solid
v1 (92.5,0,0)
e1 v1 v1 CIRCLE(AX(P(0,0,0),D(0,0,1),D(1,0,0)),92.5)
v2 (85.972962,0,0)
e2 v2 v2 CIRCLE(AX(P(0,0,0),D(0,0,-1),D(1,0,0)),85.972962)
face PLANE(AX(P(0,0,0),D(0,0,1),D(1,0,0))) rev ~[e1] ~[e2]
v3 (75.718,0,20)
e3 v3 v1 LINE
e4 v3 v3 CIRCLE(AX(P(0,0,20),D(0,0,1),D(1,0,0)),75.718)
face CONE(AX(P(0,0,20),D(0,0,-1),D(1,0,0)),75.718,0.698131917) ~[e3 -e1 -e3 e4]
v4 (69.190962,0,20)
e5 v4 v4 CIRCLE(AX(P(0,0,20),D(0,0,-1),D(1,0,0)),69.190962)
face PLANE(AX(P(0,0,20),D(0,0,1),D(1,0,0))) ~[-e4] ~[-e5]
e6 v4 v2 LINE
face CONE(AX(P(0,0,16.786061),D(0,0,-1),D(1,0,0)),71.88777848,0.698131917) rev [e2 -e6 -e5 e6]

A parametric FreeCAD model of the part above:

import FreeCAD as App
import Part
import Sketcher
from FreeCAD import Vector
Q = App.Units.Quantity


def faces_at(feature, points):
    """Names of the faces that lie closest to the given points."""
    faces = feature.Shape.Faces
    near = lambda p: min(range(len(faces)), key=lambda i: faces[i].distToShape(Part.Vertex(*p))[0])
    return sorted({f"Face{near(p) + 1}" for p in points})


def add_polygon(sketch, points):
    """Adds a closed chain of lines whose ends are joined by coincident constraints."""
    first, n = sketch.GeometryCount, len(points)
    for a, b in zip(points, points[1:] + points[:1]):
        sketch.addGeometry(Part.LineSegment(App.Vector(*a, 0), App.Vector(*b, 0)), False)
    for i in range(n):
        sketch.addConstraint(Sketcher.Constraint("Coincident", first + i, 2, first + (i + 1) % n, 1))

doc = App.newDocument("Part")
params = doc.addObject("Spreadsheet::Sheet", "Params")
for row, (alias, value) in enumerate([
    ("sketch1_height", "20 mm"),
    ("sketch1_width", "92.5 mm"),
    ("revolution_angle", "360 deg"),
    ("thickness_wall", "5 mm"),
], start=1):
    params.set(f"A{row}", alias)
    params.set(f"B{row}", "=" + value)
    params.setAlias(f"B{row}", alias)

body = doc.addObject("PartDesign::Body", "Body")

# Sketch on XZ plane
sketch1 = body.newObject("Sketcher::SketchObject", "Sketch")
sketch1.AttachmentSupport = (doc.getObject("XZ_Plane"), [""])
sketch1.MapMode = "FlatFace"
add_polygon(sketch1, [(92.5, 0), (0, 0), (0, 20), (75.718, 20)])  # lines 0-3
sketch1.addConstraint([
    Sketcher.Constraint("Horizontal", 0),
    Sketcher.Constraint("Vertical", 1),
    Sketcher.Constraint("Horizontal", 2),
    Sketcher.Constraint("Coincident", 0, 2, -1, 1),
    Sketcher.Constraint("DistanceY", 1, 1, 1, 2, 20.0),
    Sketcher.Constraint("Angle", 3, Q("-50 deg")),
    Sketcher.Constraint("DistanceX", 0, 2, 0, 1, 92.5),
])
sketch1.setExpression("Constraints[8]", "Params.sketch1_height")
sketch1.setExpression("Constraints[10]", "Params.sketch1_width")
revolution = body.newObject("PartDesign::Revolution", "Revolution")
revolution.Profile = sketch1
revolution.ReferenceAxis = (sketch1, ["V_Axis"])
revolution.setExpression("Angle", "Params.revolution_angle")
doc.recompute()

thickness = body.newObject("PartDesign::Thickness", "Thickness")
thickness.Base = (revolution, faces_at(revolution, [(29.422, 22.519, 0), (-17.969, 19.877, 20)]))
thickness.setExpression("Value", "Params.thickness_wall")
thickness.Reversed = True
thickness.Join = "Intersection"

doc.recompute()
